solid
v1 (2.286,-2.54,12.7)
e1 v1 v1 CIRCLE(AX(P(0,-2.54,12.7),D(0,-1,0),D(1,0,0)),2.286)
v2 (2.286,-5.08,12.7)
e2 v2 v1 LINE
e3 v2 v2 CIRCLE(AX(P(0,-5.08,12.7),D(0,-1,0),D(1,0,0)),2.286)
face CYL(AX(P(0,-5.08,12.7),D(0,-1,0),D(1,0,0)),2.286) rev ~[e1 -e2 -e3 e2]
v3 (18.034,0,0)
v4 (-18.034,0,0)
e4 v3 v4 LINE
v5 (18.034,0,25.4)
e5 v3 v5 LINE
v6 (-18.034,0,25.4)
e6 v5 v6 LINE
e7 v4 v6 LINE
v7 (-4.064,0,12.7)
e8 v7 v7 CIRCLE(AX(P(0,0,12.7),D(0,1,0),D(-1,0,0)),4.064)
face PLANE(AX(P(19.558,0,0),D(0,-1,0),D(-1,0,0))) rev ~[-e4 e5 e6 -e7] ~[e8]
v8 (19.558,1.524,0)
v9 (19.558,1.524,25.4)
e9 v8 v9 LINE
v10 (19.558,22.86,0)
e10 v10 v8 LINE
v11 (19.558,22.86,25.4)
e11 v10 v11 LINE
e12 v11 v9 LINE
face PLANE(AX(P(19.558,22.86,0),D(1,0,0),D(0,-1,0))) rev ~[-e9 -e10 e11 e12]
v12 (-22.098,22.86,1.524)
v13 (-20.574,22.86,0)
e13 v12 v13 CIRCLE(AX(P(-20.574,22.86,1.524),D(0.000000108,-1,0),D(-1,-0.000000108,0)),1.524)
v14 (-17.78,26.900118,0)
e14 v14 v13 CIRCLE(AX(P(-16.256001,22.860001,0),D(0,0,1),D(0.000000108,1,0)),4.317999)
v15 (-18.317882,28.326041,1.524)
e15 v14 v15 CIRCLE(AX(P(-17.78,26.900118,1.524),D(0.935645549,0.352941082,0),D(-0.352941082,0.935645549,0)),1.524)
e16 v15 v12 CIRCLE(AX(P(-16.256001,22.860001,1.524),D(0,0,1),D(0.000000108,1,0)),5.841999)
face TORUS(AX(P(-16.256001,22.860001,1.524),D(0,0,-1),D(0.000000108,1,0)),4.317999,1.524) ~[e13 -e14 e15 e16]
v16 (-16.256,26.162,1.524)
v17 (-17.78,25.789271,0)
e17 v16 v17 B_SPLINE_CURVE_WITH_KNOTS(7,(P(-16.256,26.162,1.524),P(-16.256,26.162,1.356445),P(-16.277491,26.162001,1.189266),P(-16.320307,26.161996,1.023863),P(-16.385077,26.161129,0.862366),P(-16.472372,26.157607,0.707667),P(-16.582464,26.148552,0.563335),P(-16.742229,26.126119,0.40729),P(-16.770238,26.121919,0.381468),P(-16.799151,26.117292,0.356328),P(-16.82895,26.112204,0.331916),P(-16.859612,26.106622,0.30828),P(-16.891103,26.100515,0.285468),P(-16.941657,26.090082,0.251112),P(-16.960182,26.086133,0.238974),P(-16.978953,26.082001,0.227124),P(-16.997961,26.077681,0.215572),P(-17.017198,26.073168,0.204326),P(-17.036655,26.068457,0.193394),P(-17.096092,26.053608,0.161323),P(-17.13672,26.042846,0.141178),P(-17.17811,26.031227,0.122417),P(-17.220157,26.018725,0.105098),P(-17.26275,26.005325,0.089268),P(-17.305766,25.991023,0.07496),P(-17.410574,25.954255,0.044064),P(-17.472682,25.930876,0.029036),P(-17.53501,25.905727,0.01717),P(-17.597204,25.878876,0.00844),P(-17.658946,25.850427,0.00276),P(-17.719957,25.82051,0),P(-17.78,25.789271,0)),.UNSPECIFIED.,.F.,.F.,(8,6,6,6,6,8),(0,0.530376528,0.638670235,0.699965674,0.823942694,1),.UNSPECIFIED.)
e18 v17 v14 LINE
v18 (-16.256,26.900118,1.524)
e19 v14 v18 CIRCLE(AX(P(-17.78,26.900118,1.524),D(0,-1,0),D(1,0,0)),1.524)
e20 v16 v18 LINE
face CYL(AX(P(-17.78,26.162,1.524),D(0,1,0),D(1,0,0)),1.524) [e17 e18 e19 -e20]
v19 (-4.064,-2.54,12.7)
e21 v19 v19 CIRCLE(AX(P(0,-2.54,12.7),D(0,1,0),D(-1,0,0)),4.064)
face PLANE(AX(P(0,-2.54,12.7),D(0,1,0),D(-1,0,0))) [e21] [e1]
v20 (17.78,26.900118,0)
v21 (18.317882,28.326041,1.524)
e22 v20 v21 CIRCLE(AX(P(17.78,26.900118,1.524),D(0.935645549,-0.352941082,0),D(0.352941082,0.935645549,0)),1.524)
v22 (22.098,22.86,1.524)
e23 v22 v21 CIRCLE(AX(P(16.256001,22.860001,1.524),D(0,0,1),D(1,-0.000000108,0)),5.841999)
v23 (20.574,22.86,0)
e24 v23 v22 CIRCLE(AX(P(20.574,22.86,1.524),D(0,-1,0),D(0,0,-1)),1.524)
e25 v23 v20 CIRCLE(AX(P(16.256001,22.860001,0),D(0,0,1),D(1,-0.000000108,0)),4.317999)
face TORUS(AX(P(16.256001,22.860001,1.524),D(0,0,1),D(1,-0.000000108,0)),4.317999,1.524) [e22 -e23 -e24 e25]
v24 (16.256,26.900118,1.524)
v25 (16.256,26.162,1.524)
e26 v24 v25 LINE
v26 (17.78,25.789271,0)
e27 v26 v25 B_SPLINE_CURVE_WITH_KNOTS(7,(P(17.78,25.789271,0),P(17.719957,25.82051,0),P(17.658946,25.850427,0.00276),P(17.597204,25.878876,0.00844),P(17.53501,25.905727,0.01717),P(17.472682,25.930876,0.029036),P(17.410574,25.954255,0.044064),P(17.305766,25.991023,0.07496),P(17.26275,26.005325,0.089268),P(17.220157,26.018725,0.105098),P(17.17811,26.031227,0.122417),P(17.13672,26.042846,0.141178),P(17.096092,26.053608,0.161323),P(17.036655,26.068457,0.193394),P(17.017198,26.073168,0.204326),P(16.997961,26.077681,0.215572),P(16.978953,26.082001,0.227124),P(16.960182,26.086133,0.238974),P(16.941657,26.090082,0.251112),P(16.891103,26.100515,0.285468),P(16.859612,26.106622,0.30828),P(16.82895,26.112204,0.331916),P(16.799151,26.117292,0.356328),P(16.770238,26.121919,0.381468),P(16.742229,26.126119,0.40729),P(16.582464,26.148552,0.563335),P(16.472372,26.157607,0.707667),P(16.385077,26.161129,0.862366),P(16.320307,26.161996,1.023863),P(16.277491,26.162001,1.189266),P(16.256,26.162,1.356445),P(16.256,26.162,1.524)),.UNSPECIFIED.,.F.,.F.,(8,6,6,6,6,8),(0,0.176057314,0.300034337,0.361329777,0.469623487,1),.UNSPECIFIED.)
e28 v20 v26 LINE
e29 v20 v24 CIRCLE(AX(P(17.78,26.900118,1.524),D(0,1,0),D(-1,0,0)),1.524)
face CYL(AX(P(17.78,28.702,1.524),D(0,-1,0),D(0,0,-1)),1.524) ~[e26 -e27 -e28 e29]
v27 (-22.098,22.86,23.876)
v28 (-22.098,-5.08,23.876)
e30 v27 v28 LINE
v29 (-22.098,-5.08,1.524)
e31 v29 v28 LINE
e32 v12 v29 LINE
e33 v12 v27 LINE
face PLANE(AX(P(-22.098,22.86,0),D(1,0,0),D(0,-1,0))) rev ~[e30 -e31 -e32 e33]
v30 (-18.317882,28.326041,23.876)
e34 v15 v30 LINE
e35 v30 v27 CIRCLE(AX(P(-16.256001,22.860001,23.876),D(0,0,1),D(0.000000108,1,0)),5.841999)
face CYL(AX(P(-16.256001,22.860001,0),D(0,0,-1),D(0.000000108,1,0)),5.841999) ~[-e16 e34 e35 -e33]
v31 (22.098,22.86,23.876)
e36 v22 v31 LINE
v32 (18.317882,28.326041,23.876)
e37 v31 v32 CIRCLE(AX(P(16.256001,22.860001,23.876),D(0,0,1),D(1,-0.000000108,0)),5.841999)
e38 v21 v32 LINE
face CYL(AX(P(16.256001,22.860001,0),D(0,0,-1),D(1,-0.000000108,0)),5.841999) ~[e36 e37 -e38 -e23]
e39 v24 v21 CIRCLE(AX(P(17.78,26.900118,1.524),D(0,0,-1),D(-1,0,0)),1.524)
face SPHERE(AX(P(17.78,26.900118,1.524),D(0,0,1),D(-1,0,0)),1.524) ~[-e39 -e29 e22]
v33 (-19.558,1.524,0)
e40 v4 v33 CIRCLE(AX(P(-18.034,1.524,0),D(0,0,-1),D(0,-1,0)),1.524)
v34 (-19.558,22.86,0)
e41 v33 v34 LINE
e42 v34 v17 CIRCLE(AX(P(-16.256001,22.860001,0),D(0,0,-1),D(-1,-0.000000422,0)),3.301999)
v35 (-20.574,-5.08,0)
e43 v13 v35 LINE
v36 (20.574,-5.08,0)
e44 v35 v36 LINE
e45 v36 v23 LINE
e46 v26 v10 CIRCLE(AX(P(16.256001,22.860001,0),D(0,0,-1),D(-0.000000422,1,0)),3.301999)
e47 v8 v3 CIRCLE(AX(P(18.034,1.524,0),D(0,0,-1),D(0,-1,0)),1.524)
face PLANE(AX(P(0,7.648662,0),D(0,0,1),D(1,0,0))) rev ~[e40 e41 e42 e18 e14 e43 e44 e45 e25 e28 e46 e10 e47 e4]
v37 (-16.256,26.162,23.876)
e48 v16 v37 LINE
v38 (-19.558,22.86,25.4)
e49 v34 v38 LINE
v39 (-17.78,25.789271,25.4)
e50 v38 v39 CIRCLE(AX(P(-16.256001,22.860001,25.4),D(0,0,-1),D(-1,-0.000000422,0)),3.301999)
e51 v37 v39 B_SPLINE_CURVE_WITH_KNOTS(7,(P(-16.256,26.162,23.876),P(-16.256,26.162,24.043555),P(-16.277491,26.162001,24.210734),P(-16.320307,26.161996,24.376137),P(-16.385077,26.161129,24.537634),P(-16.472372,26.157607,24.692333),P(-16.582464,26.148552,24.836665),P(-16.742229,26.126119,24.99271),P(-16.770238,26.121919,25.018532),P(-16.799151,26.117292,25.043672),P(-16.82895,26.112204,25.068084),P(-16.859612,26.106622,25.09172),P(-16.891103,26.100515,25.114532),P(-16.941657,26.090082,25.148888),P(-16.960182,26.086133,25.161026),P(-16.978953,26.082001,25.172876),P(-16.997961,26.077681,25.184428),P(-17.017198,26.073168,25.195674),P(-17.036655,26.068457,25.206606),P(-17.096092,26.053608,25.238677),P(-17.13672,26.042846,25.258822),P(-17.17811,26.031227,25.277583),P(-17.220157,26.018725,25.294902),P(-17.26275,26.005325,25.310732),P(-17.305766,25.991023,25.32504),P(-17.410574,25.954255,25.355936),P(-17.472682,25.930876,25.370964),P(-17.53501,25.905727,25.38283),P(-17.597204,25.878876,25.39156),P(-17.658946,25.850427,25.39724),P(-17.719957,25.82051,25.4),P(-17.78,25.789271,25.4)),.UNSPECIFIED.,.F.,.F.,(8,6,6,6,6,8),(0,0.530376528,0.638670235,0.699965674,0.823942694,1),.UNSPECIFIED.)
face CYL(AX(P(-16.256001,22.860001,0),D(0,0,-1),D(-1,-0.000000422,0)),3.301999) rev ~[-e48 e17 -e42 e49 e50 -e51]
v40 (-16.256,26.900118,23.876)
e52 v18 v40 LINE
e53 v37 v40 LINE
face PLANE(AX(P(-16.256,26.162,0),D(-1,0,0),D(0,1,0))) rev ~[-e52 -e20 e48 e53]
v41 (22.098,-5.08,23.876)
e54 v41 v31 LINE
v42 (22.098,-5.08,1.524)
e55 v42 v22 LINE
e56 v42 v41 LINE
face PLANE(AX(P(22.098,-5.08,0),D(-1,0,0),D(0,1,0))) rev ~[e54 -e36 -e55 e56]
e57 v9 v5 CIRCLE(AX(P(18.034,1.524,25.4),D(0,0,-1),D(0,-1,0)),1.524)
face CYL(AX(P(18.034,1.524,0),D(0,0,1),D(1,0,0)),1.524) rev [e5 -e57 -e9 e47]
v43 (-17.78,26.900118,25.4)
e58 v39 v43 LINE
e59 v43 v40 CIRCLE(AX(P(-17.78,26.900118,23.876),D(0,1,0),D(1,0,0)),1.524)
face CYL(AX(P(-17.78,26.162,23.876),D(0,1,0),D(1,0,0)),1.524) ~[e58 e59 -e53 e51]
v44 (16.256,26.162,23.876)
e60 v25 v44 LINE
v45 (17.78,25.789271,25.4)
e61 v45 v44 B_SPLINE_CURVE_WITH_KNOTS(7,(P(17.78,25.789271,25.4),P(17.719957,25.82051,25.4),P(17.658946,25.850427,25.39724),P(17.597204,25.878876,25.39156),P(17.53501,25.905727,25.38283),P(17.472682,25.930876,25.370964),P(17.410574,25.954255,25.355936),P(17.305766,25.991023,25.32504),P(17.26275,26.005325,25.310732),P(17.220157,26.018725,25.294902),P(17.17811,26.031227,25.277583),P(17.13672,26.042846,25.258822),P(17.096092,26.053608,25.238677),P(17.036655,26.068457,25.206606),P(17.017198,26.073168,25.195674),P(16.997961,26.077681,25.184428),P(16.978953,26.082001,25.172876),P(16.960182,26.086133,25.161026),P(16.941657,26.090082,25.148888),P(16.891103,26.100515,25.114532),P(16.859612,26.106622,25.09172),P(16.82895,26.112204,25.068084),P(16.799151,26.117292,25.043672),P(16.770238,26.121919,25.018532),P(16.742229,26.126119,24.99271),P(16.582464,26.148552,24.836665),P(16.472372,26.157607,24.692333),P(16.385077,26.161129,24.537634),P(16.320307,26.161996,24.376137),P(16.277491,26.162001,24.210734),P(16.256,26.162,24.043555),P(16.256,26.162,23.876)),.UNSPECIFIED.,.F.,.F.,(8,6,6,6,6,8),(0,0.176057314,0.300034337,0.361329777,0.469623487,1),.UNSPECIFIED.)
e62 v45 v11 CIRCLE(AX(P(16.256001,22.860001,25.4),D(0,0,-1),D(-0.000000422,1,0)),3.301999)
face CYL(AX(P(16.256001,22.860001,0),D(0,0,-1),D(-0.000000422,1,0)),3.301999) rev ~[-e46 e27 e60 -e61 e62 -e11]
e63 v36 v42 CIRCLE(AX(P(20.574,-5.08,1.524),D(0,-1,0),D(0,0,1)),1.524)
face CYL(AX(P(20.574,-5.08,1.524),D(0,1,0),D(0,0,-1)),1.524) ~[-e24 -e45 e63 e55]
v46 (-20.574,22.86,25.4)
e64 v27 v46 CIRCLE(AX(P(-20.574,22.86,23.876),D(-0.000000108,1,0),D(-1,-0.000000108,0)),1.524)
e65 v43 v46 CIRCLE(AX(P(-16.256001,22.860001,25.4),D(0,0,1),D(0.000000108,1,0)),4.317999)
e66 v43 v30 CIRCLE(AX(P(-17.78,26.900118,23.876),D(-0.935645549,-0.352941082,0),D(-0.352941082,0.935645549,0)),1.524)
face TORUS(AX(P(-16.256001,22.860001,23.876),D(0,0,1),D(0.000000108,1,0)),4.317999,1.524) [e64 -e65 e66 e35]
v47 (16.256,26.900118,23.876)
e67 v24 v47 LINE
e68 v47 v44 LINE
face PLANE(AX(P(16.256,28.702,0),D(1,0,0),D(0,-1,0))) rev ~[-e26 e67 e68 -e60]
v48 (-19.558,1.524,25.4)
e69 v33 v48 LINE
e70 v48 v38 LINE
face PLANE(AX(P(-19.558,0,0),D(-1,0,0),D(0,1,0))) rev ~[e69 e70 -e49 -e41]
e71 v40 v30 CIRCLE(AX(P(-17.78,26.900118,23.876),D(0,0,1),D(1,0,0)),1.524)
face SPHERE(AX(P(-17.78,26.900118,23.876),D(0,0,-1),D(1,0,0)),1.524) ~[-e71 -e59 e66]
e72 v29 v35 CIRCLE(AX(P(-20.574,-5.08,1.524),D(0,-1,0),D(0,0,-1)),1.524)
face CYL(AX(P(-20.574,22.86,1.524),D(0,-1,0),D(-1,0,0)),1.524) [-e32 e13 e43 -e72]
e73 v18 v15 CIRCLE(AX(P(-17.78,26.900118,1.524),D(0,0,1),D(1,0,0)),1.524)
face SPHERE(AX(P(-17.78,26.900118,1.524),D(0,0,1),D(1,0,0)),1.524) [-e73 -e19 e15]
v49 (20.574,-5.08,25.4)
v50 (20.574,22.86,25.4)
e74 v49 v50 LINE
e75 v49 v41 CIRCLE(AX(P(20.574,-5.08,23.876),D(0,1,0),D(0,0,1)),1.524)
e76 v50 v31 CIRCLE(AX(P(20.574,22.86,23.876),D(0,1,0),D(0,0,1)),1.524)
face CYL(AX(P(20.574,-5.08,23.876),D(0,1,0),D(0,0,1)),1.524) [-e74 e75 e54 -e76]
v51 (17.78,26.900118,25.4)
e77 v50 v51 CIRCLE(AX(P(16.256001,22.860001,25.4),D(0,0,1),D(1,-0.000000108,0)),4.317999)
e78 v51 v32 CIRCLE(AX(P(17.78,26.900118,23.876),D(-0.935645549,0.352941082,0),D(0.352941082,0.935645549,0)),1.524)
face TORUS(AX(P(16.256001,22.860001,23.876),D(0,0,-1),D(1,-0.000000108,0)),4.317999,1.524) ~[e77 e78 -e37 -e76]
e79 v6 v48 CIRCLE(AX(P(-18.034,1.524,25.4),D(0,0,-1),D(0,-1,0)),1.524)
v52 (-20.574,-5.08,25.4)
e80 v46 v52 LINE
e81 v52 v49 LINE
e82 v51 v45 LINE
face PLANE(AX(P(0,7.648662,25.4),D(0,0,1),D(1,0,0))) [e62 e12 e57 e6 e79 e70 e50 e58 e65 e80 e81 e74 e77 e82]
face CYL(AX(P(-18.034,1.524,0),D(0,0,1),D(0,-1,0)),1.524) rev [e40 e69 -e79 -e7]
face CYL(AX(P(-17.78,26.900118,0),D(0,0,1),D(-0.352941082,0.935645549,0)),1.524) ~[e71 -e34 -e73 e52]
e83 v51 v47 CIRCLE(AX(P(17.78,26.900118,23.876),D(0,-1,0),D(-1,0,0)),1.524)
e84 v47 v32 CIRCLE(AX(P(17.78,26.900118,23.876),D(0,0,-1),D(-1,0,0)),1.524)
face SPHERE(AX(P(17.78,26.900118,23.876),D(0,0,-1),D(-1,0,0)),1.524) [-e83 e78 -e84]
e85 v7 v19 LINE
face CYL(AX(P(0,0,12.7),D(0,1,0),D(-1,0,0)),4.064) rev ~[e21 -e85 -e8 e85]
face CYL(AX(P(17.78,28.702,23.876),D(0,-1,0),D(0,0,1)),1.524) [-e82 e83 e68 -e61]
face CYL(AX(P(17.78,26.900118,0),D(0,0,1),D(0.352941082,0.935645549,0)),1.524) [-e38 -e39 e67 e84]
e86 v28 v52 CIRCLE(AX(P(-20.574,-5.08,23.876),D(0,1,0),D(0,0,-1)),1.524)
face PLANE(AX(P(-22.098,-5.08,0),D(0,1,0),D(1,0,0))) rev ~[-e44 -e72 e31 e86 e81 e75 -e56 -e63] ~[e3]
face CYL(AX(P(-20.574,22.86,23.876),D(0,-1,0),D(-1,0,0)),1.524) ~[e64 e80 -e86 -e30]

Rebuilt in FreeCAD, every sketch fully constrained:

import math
import FreeCAD as App
import Part
import Sketcher
from FreeCAD import Vector
Q = App.Units.Quantity


def edges_at(feature, points):
    """Names of the edges that pass closest to the given points."""
    edges = feature.Shape.Edges
    near = lambda p: min(range(len(edges)), key=lambda i: edges[i].distToShape(Part.Vertex(*p))[0])
    return sorted({f"Edge{near(p) + 1}" for p in points})

doc = App.newDocument("Part")
params = doc.addObject("Spreadsheet::Sheet", "Params")
for row, (alias, value) in enumerate([
    ("sketch1_radius", "0.23 in"),
    ("sketch1_radius2", "0.1299999 in"),
    ("sketch1_height", "1.1 in"),
    ("sketch1_height2", "0.9 in"),
    ("sketch1_width", "1.74 in"),
    ("pad1_length", "1 in"),
    ("sketch2_diameter", "0.18 in"),
    ("sketch3_diameter", "0.32 in"),
    ("pocket2_length", "0.1 in"),
    ("fillet_radius", "0.06 in"),
], start=1):
    params.set(f"A{row}", alias)
    params.set(f"B{row}", "=" + value)
    params.setAlias(f"B{row}", alias)

body = doc.addObject("PartDesign::Body", "Body")

sketch1 = body.newObject("Sketcher::SketchObject", "Sketch")
sketch1.AttachmentSupport = (doc.getObject("XY_Plane"), [""])
sketch1.MapMode = "FlatFace"
sketch1.addGeometry(Part.ArcOfCircle(Part.Circle(Vector(-16.256001, 22.860001, 0), Vector(0, 0, 1), 5.841999), math.radians(89.999994), math.radians(180.000006)), False)
sketch1.addGeometry(Part.LineSegment(Vector(-22.098, 22.86, 0), Vector(-22.098, -5.08, 0)), False)
sketch1.addGeometry(Part.LineSegment(Vector(-22.098, -5.08, 0), Vector(22.098, -5.08, 0)), False)
sketch1.addGeometry(Part.LineSegment(Vector(22.098, -5.08, 0), Vector(22.098, 22.86, 0)), False)
sketch1.addGeometry(Part.ArcOfCircle(Part.Circle(Vector(16.256001, 22.860001, 0), Vector(0, 0, 1), 5.841999), math.radians(-0.000006), math.radians(90.000006)), False)
sketch1.addGeometry(Part.LineSegment(Vector(16.256, 28.702, 0), Vector(16.256, 26.162, 0)), False)
sketch1.addGeometry(Part.ArcOfCircle(Part.Circle(Vector(16.256001, 22.860001, 0), Vector(0, 0, 1), 3.301999), math.radians(-0.000024), math.radians(90.000024)), False)
sketch1.addGeometry(Part.LineSegment(Vector(19.558, 22.86, 0), Vector(19.558, 0, 0)), False)
sketch1.addGeometry(Part.LineSegment(Vector(19.558, 0, 0), Vector(-19.558, 0, 0)), False)
sketch1.addGeometry(Part.LineSegment(Vector(-19.558, 0, 0), Vector(-19.558, 22.86, 0)), False)
sketch1.addGeometry(Part.ArcOfCircle(Part.Circle(Vector(-16.256001, 22.860001, 0), Vector(0, 0, 1), 3.301999), math.radians(89.999976), math.radians(180.000024)), False)
sketch1.addGeometry(Part.LineSegment(Vector(-16.256, 26.162, 0), Vector(-16.256, 28.702, 0)), False)
sketch1.addConstraint(Sketcher.Constraint("Tangent", 0, 2, 1, 1))
sketch1.addConstraint(Sketcher.Constraint("Coincident", 1, 2, 2, 1))
sketch1.addConstraint(Sketcher.Constraint("Coincident", 2, 2, 3, 1))
sketch1.addConstraint(Sketcher.Constraint("Tangent", 3, 2, 4, 1))
sketch1.addConstraint(Sketcher.Constraint("Coincident", 4, 2, 5, 1))
sketch1.addConstraint(Sketcher.Constraint("Coincident", 5, 2, 6, 2))
sketch1.addConstraint(Sketcher.Constraint("Tangent", 6, 1, 7, 1))
sketch1.addConstraint(Sketcher.Constraint("Coincident", 7, 2, 8, 1))
sketch1.addConstraint(Sketcher.Constraint("Coincident", 8, 2, 9, 1))
sketch1.addConstraint(Sketcher.Constraint("Tangent", 9, 2, 10, 2))
sketch1.addConstraint(Sketcher.Constraint("Coincident", 10, 1, 11, 1))
sketch1.addConstraint(Sketcher.Constraint("Coincident", 11, 2, 0, 1))
sketch1.addConstraint(Sketcher.Constraint("Vertical", 1))
sketch1.addConstraint(Sketcher.Constraint("Horizontal", 2))
sketch1.addConstraint(Sketcher.Constraint("Vertical", 3))
sketch1.addConstraint(Sketcher.Constraint("Vertical", 5))
sketch1.addConstraint(Sketcher.Constraint("Vertical", 7))
sketch1.addConstraint(Sketcher.Constraint("Horizontal", 8))
sketch1.addConstraint(Sketcher.Constraint("Vertical", 9))
sketch1.addConstraint(Sketcher.Constraint("Vertical", 11))
sketch1.addConstraint(Sketcher.Constraint("Coincident", 6, 3, 4, 3))
sketch1.addConstraint(Sketcher.Constraint("Coincident", 10, 3, 0, 3))
sketch1.addConstraint(Sketcher.Constraint("Equal", 0, 4))
sketch1.addConstraint(Sketcher.Constraint("Equal", 6, 10))
sketch1.addConstraint(Sketcher.Constraint("Symmetric", 7, 2, 8, 2, -1, 1))
sketch1.addConstraint(Sketcher.Constraint("Symmetric", 5, 2, 10, 1, -2))
sketch1.addConstraint(Sketcher.Constraint("Vertical", 6, 3, 4, 2))
sketch1.addConstraint(Sketcher.Constraint("Radius", 0, Q("0.23 in")))
sketch1.addConstraint(Sketcher.Constraint("Radius", 6, Q("0.1299999 in")))
sketch1.addConstraint(Sketcher.Constraint("DistanceY", 1, 2, 1, 1, Q("1.1 in")))
sketch1.addConstraint(Sketcher.Constraint("DistanceY", 7, 2, 7, 1, Q("0.9 in")))
sketch1.addConstraint(Sketcher.Constraint("DistanceX", 2, 1, 2, 2, Q("1.74 in")))
sketch1.setExpression("Constraints[27]", "Params.sketch1_radius")
sketch1.setExpression("Constraints[28]", "Params.sketch1_radius2")
sketch1.setExpression("Constraints[29]", "Params.sketch1_height")
sketch1.setExpression("Constraints[30]", "Params.sketch1_height2")
sketch1.setExpression("Constraints[31]", "Params.sketch1_width")
pad1 = body.newObject("PartDesign::Pad", "Pad")
pad1.Profile = sketch1
pad1.setExpression("Length", "Params.pad1_length")

sketch2 = body.newObject("Sketcher::SketchObject", "Sketch001")
sketch2.AttachmentSupport = (doc.getObject("XZ_Plane"), [""])
sketch2.MapMode = "FlatFace"
sketch2.AttachmentOffset = App.Placement(Vector(0, 0, 0.2 * 25.4), App.Rotation())
sketch2.addGeometry(Part.Circle(Vector(0, 12.7, 0), Vector(0, 0, 1), 2.286), False)
sketch2.addConstraint(Sketcher.Constraint("PointOnObject", 0, 3, -2))
sketch2.addConstraint(Sketcher.Constraint("Diameter", 0, Q("0.18 in")))
sketch2.addConstraint(Sketcher.Constraint("DistanceY", -1, 1, 0, 3, Q("0.5 in")))
sketch2.setExpression("Constraints[1]", "Params.sketch2_diameter")
pocket1 = body.newObject("PartDesign::Pocket", "Pocket")
pocket1.Profile = sketch2
pocket1.Type = "ThroughAll"

sketch3 = body.newObject("Sketcher::SketchObject", "Sketch002")
sketch3.AttachmentSupport = (doc.getObject("XZ_Plane"), [""])
sketch3.MapMode = "FlatFace"
sketch3.addGeometry(Part.Circle(Vector(0, 12.7, 0), Vector(0, 0, 1), 4.064), False)
sketch3.addConstraint(Sketcher.Constraint("PointOnObject", 0, 3, -2))
sketch3.addConstraint(Sketcher.Constraint("Diameter", 0, Q("0.32 in")))
sketch3.addConstraint(Sketcher.Constraint("DistanceY", -1, 1, 0, 3, Q("0.5 in")))
sketch3.setExpression("Constraints[1]", "Params.sketch3_diameter")
pocket2 = body.newObject("PartDesign::Pocket", "Pocket001")
pocket2.Profile = sketch3
pocket2.setExpression("Length", "Params.pocket2_length")
pocket2.Reversed = True
doc.recompute()

fillet = body.newObject("PartDesign::Fillet", "Fillet")
fillet.Base = (pocket2, edges_at(pocket2, [
    (-20.387, 26.991, 25.4),
    (20.387, 26.991, 25.4),
    (20.387, 26.991, 0),
    (-22.098, 8.89, 0),
    (-19.558, 0, 12.7),
    (19.558, 0, 12.7),
    (-16.256, 28.702, 12.7),
    (16.256, 28.702, 12.7),
    (-16.256, 27.432, 25.4),
    (16.256, 27.432, 25.4),
    (16.256, 27.432, 0),
    (-16.256, 27.432, 0),
]))
fillet.setExpression("Radius", "Params.fillet_radius")

doc.recompute()
